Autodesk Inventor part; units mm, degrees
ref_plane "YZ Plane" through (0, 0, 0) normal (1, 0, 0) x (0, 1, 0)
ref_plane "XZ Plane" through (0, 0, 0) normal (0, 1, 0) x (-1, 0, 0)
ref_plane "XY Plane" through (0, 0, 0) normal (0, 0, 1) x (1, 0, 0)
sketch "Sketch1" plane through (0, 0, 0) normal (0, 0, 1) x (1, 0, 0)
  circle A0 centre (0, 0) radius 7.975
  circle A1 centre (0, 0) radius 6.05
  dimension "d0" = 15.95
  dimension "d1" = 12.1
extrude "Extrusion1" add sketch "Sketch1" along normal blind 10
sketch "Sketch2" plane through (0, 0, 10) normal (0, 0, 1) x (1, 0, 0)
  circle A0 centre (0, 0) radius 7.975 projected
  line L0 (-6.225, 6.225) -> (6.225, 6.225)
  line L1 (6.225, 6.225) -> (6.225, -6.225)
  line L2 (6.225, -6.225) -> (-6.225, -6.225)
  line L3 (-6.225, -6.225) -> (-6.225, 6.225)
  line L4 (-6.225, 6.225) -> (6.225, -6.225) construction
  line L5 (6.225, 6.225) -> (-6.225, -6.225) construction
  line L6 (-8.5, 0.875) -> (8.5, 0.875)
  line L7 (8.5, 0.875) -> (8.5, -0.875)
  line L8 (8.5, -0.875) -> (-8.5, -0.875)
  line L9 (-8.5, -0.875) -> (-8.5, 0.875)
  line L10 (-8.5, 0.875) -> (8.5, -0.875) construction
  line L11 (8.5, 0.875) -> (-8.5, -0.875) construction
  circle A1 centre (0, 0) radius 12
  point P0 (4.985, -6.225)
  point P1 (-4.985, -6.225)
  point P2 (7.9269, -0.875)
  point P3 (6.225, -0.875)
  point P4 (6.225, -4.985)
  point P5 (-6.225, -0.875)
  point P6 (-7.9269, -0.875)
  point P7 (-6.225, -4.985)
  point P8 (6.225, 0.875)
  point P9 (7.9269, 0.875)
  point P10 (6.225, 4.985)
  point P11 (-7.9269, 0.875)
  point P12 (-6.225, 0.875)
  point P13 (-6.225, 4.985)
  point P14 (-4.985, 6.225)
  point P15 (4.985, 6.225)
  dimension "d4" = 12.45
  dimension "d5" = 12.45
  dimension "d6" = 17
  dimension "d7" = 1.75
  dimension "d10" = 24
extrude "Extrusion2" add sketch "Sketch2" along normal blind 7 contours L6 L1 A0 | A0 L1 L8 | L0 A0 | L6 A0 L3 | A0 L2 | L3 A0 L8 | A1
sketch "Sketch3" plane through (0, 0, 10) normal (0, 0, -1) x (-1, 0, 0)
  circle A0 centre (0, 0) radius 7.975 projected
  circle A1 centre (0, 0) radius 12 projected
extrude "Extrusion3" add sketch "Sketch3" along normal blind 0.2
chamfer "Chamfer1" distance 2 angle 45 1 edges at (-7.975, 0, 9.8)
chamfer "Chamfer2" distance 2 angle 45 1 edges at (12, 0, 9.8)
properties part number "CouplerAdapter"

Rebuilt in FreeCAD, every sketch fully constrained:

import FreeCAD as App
import Part
import Sketcher

V = App.Vector
Q = App.Units.Quantity


def edges_at(feature, points):
    """Names of the edges that pass closest to the given points."""
    edges = feature.Shape.Edges
    near = lambda p: min(range(len(edges)), key=lambda i: edges[i].distToShape(Part.Vertex(*p))[0])
    return sorted({f"Edge{near(p) + 1}" for p in points})

doc = App.newDocument("Part")
body = doc.addObject("PartDesign::Body", "Body")

sketch1 = doc.addObject("Sketcher::SketchObject", "Sketch")
body.addObject(sketch1)
sketch1.AttachmentSupport = (doc.XY_Plane, [""])
sketch1.MapMode = "FlatFace"
sketch1.addGeometry(Part.Circle(V(0, 0, 0), V(0, 0, 1), 8), False)
sketch1.addGeometry(Part.Circle(V(0, 0, 0), V(0, 0, 1), 6), False)
sketch1.addConstraint(Sketcher.Constraint("Coincident", 0, 3, -1, 1))
sketch1.addConstraint(Sketcher.Constraint("Coincident", 1, 3, -1, 1))
sketch1.addConstraint(Sketcher.Constraint("Diameter", 1, Q("12.1 mm")))
sketch1.addConstraint(Sketcher.Constraint("Diameter", 0, Q("15.95 mm")))
pad1 = doc.addObject("PartDesign::Pad", "Pad")
body.addObject(pad1)
pad1.Profile = sketch1
pad1.Length = 10

sketch2 = doc.addObject("Sketcher::SketchObject", "Sketch001")
body.addObject(sketch2)
sketch2.AttachmentSupport = (doc.XY_Plane, [""])
sketch2.MapMode = "FlatFace"
sketch2.AttachmentOffset = App.Placement(V(0, 0, 10), App.Rotation())
sketch2.addGeometry(Part.Circle(V(0, 0, 0), V(0, 0, 1), 12), False)
sketch2.addGeometry(Part.LineSegment(V(6.2, 0.9, 0), V(8.5, 0.9, 0)), False)
sketch2.addGeometry(Part.LineSegment(V(8.5, 0.9, 0), V(8.5, -0.9, 0)), False)
sketch2.addGeometry(Part.LineSegment(V(8.5, -0.9, 0), V(6.2, -0.9, 0)), False)
sketch2.addGeometry(Part.LineSegment(V(6.2, -0.9, 0), V(6.2, -6.2, 0)), False)
sketch2.addGeometry(Part.LineSegment(V(6.2, -6.2, 0), V(-6.2, -6.2, 0)), False)
sketch2.addGeometry(Part.LineSegment(V(-6.2, -6.2, 0), V(-6.2, -0.9, 0)), False)
sketch2.addGeometry(Part.LineSegment(V(-6.2, -0.9, 0), V(-8.5, -0.9, 0)), False)
sketch2.addGeometry(Part.LineSegment(V(-8.5, -0.9, 0), V(-8.5, 0.9, 0)), False)
sketch2.addGeometry(Part.LineSegment(V(-8.5, 0.9, 0), V(-6.2, 0.9, 0)), False)
sketch2.addGeometry(Part.LineSegment(V(-6.2, 0.9, 0), V(-6.2, 6.2, 0)), False)
sketch2.addGeometry(Part.LineSegment(V(-6.2, 6.2, 0), V(6.2, 6.2, 0)), False)
sketch2.addGeometry(Part.LineSegment(V(6.2, 6.2, 0), V(6.2, 0.9, 0)), False)
sketch2.addConstraint(Sketcher.Constraint("Coincident", 1, 2, 2, 1))
sketch2.addConstraint(Sketcher.Constraint("Coincident", 2, 2, 3, 1))
sketch2.addConstraint(Sketcher.Constraint("Coincident", 3, 2, 4, 1))
sketch2.addConstraint(Sketcher.Constraint("Coincident", 4, 2, 5, 1))
sketch2.addConstraint(Sketcher.Constraint("Coincident", 5, 2, 6, 1))
sketch2.addConstraint(Sketcher.Constraint("Coincident", 6, 2, 7, 1))
sketch2.addConstraint(Sketcher.Constraint("Coincident", 7, 2, 8, 1))
sketch2.addConstraint(Sketcher.Constraint("Coincident", 8, 2, 9, 1))
sketch2.addConstraint(Sketcher.Constraint("Coincident", 9, 2, 10, 1))
sketch2.addConstraint(Sketcher.Constraint("Coincident", 10, 2, 11, 1))
sketch2.addConstraint(Sketcher.Constraint("Coincident", 11, 2, 12, 1))
sketch2.addConstraint(Sketcher.Constraint("Coincident", 12, 2, 1, 1))
sketch2.addConstraint(Sketcher.Constraint("Horizontal", 1))
sketch2.addConstraint(Sketcher.Constraint("Vertical", 2))
sketch2.addConstraint(Sketcher.Constraint("Horizontal", 3))
sketch2.addConstraint(Sketcher.Constraint("Vertical", 4))
sketch2.addConstraint(Sketcher.Constraint("Horizontal", 5))
sketch2.addConstraint(Sketcher.Constraint("Vertical", 6))
sketch2.addConstraint(Sketcher.Constraint("Horizontal", 7))
sketch2.addConstraint(Sketcher.Constraint("Vertical", 8))
sketch2.addConstraint(Sketcher.Constraint("Horizontal", 9))
sketch2.addConstraint(Sketcher.Constraint("Vertical", 10))
sketch2.addConstraint(Sketcher.Constraint("Horizontal", 11))
sketch2.addConstraint(Sketcher.Constraint("Vertical", 12))
sketch2.addConstraint(Sketcher.Constraint("Coincident", 0, 3, -1, 1))
sketch2.addConstraint(Sketcher.Constraint("Symmetric", 1, 2, 7, 2, -1, 1))
sketch2.addConstraint(Sketcher.Constraint("Symmetric", 3, 2, 9, 2, -1, 1))
sketch2.addConstraint(Sketcher.Constraint("Symmetric", 5, 2, 11, 2, -1, 1))
sketch2.addConstraint(Sketcher.Constraint("Symmetric", 3, 2, 6, 2, -2))
sketch2.addConstraint(Sketcher.Constraint("Diameter", 0, Q("24 mm")))
sketch2.addConstraint(Sketcher.Constraint("DistanceX", 5, 2, 5, 1, Q("12.45 mm")))
sketch2.addConstraint(Sketcher.Constraint("DistanceY", 2, 2, 2, 1, Q("1.75 mm")))
sketch2.addConstraint(Sketcher.Constraint("DistanceY", 4, 2, 11, 2, Q("12.45 mm")))
sketch2.addConstraint(Sketcher.Constraint("DistanceX", -1, 1, 1, 2, Q("8.5 mm")))
pad2 = doc.addObject("PartDesign::Pad", "Pad001")
body.addObject(pad2)
pad2.Profile = sketch2
pad2.Length = 7

sketch3 = doc.addObject("Sketcher::SketchObject", "Sketch002")
body.addObject(sketch3)
sketch3.AttachmentSupport = (doc.XY_Plane, [""])
sketch3.MapMode = "FlatFace"
sketch3.AttachmentOffset = App.Placement(V(0, 0, 10), App.Rotation())
sketch3.addGeometry(Part.Circle(V(0, 0, 0), V(0, 0, 1), 12), False)
sketch3.addGeometry(Part.Circle(V(0, 0, 0), V(0, 0, 1), 8), False)
sketch3.addConstraint(Sketcher.Constraint("Coincident", 0, 3, -1, 1))
sketch3.addConstraint(Sketcher.Constraint("Coincident", 1, 3, -1, 1))
sketch3.addConstraint(Sketcher.Constraint("Diameter", 0, Q("24 mm")))
sketch3.addConstraint(Sketcher.Constraint("Diameter", 1, Q("15.95 mm")))
pad3 = doc.addObject("PartDesign::Pad", "Pad002")
body.addObject(pad3)
pad3.Profile = sketch3
pad3.Length = 0.2
pad3.Reversed = True
doc.recompute()

chamfer = doc.addObject("PartDesign::Chamfer", "Chamfer")
body.addObject(chamfer)
chamfer.Base = (pad3, edges_at(pad3, [(-7.975, 0, 9.8)]))
chamfer.Size = 2
doc.recompute()

chamfer2 = doc.addObject("PartDesign::Chamfer", "Chamfer001")
body.addObject(chamfer2)
chamfer2.Base = (chamfer, edges_at(chamfer, [(12, 0, 9.8)]))
chamfer2.Size = 2

doc.recompute()
